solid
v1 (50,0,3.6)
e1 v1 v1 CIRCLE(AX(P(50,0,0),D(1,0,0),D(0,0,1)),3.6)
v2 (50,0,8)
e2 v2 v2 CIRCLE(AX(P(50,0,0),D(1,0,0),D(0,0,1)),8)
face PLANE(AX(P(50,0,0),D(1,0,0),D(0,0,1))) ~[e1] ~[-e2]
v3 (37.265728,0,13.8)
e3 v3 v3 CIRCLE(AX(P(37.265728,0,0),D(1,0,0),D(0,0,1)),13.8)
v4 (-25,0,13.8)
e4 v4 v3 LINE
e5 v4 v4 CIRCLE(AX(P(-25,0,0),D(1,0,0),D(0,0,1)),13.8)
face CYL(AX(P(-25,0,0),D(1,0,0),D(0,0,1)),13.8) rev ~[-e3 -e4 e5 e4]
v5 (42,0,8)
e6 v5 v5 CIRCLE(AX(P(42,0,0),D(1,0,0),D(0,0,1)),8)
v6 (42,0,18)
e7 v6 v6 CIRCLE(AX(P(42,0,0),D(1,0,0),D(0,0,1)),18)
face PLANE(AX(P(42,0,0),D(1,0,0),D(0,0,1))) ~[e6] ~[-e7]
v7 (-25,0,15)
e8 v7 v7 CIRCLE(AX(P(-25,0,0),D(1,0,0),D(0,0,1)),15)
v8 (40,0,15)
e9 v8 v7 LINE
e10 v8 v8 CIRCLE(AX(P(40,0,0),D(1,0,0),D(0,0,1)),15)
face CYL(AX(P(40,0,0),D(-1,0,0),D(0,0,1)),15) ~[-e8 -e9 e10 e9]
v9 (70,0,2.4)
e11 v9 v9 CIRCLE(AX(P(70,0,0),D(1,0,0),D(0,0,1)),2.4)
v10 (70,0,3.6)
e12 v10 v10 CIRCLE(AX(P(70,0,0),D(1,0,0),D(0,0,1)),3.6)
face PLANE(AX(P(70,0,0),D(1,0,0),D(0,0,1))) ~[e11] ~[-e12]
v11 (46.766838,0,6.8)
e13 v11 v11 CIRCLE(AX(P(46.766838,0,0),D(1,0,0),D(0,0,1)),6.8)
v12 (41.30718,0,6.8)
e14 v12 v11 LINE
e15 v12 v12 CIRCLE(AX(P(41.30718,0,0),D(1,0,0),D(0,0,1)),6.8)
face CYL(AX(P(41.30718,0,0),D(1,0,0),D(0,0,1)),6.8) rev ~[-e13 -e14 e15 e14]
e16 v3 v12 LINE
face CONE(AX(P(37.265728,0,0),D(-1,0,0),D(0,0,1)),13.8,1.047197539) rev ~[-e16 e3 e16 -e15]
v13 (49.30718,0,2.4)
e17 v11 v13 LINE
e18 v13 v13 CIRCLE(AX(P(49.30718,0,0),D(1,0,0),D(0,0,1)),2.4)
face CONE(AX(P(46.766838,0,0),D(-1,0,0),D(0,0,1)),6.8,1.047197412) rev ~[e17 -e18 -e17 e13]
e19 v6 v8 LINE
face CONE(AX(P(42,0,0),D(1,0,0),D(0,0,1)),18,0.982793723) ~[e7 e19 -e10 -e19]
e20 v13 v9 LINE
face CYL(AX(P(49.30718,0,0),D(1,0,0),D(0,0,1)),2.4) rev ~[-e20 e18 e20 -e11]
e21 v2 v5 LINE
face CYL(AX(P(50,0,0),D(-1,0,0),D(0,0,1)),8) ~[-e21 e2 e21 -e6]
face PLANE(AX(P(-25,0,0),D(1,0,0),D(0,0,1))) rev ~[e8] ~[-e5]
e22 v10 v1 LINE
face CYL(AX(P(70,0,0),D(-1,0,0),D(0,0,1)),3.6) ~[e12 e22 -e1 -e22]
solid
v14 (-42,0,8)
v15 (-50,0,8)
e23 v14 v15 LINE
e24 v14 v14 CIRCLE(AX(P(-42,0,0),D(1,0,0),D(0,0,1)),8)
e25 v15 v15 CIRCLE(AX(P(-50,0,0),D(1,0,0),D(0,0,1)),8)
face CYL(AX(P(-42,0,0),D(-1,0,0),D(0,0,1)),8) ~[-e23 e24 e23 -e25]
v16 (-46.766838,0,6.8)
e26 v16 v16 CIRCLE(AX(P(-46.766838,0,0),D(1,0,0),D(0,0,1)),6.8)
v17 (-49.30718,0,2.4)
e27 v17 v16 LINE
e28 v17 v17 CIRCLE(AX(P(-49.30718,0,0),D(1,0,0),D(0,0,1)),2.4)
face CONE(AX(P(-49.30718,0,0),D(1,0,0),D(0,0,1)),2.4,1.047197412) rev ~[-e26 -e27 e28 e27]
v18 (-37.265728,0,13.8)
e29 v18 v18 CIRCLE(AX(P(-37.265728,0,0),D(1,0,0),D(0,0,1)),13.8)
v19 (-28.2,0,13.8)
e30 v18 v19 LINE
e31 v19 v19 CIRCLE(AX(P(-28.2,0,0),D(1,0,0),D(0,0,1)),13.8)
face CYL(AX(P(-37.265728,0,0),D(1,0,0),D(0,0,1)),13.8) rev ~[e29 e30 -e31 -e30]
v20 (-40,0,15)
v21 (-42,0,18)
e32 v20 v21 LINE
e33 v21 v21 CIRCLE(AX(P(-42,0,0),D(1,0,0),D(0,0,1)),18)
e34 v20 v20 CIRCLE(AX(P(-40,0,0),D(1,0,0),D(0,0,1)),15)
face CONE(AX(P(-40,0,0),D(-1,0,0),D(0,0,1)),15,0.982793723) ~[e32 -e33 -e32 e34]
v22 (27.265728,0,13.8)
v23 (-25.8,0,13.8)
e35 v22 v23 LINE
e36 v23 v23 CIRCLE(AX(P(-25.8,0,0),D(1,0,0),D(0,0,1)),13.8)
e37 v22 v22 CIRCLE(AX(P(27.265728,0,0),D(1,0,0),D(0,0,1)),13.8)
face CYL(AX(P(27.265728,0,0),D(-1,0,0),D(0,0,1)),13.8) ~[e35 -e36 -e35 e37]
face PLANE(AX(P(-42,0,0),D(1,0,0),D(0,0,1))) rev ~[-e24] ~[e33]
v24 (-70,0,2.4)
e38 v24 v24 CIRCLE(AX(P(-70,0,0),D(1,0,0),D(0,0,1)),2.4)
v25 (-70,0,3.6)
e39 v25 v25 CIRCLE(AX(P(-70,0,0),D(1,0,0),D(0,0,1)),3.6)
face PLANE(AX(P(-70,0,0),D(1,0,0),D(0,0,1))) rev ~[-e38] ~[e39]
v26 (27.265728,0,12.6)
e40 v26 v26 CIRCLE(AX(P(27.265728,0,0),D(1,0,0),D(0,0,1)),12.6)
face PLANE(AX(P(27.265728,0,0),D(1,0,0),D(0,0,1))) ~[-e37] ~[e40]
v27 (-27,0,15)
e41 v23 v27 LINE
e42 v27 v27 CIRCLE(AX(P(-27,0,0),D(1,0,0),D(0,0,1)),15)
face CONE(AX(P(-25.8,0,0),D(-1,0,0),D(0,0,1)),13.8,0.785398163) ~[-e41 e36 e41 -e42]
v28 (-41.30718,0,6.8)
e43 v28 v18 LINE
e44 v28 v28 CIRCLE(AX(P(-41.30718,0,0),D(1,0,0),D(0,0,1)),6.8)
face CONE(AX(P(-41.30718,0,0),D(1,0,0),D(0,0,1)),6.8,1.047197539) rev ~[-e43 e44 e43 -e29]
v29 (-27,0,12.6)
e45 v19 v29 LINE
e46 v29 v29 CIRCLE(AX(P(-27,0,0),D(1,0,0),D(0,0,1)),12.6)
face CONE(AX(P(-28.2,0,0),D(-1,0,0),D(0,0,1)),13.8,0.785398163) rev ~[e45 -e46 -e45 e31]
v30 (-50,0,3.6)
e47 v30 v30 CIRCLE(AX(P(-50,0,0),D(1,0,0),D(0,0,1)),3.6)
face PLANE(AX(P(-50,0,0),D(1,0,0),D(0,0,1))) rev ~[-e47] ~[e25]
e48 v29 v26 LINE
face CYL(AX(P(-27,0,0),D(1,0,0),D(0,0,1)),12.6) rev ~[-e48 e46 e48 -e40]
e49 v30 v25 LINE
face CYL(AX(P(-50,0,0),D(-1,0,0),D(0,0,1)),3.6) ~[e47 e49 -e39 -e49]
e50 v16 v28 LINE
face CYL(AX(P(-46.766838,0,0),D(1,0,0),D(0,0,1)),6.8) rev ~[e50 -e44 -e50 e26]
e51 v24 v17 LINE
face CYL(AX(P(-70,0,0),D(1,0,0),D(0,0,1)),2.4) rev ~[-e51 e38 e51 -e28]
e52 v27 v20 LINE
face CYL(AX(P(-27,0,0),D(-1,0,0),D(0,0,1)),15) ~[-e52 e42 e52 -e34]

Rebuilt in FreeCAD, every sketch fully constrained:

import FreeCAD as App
import Part
import Sketcher

V = App.Vector
Q = App.Units.Quantity


def add_polygon(sketch, points):
    """Adds a closed chain of lines whose ends are joined by coincident constraints."""
    first, n = sketch.GeometryCount, len(points)
    for a, b in zip(points, points[1:] + points[:1]):
        sketch.addGeometry(Part.LineSegment(App.Vector(*a, 0), App.Vector(*b, 0)), False)
    for i in range(n):
        sketch.addConstraint(Sketcher.Constraint("Coincident", first + i, 2, first + (i + 1) % n, 1))

doc = App.newDocument("Part")
params = doc.addObject("Spreadsheet::Sheet", "Params")
for row, (alias, value) in enumerate([
    ("sketch1_width", "20 mm"),
    ("sketch1_width2", "8 mm"),
    ("sketch1_width3", "65 mm"),
    ("sketch1_height", "10 mm"),
    ("sketch1_height2", "1.2 mm"),
    ("revolution_angle", "360 deg"),
    ("sketch2_width", "13 mm"),
    ("sketch2_width2", "8 mm"),
    ("sketch2_width3", "20 mm"),
    ("sketch2_height", "10 mm"),
    ("sketch2_height2", "4.4 mm"),
    ("revolution2_angle", "360 deg"),
], start=1):
    params.set(f"A{row}", alias)
    params.set(f"B{row}", "=" + value)
    params.setAlias(f"B{row}", alias)

body = doc.addObject("PartDesign::Body", "Body")

sketch1 = body.newObject("Sketcher::SketchObject", "Sketch")
sketch1.AttachmentSupport = (doc.getObject("XZ_Plane"), [""])
sketch1.MapMode = "FlatFace"
add_polygon(sketch1, [(70, 2.4), (70, 3.6), (50, 3.6), (50, 8), (42, 8), (42, 18), (40, 15), (-25, 15), (-25, 13.8), (37.265728, 13.8), (41.30718, 6.8), (46.766838, 6.8), (49.30718, 2.4)])
sketch1.addConstraint(Sketcher.Constraint("Vertical", 0))
sketch1.addConstraint(Sketcher.Constraint("Horizontal", 1))
sketch1.addConstraint(Sketcher.Constraint("Vertical", 2))
sketch1.addConstraint(Sketcher.Constraint("Horizontal", 3))
sketch1.addConstraint(Sketcher.Constraint("Vertical", 4))
sketch1.addConstraint(Sketcher.Constraint("Horizontal", 6))
sketch1.addConstraint(Sketcher.Constraint("Vertical", 7))
sketch1.addConstraint(Sketcher.Constraint("Horizontal", 8))
sketch1.addConstraint(Sketcher.Constraint("Horizontal", 10))
sketch1.addConstraint(Sketcher.Constraint("Horizontal", 12))
sketch1.addConstraint(Sketcher.Constraint("Parallel", 9, 11))
sketch1.addConstraint(Sketcher.Constraint("Equal", 0, 7))
sketch1.addConstraint(Sketcher.Constraint("DistanceX", 1, 2, 1, 1, 20.0))
sketch1.addConstraint(Sketcher.Constraint("DistanceX", 3, 2, 3, 1, 8.0))
sketch1.addConstraint(Sketcher.Constraint("DistanceX", 6, 2, 6, 1, 65.0))
sketch1.addConstraint(Sketcher.Constraint("DistanceY", 4, 1, 4, 2, 10.0))
sketch1.addConstraint(Sketcher.Constraint("Angle", 9, Q("-59.999999 deg")))
sketch1.addConstraint(Sketcher.Constraint("DistanceY", 0, 1, 0, 2, 1.2))
sketch1.addConstraint(Sketcher.Constraint("DistanceY", 2, 1, 2, 2, 4.4))
sketch1.addConstraint(Sketcher.Constraint("DistanceX", -1, 1, 0, 2, 70.0))
sketch1.addConstraint(Sketcher.Constraint("DistanceY", -1, 1, 2, 2, 8.0))
sketch1.addConstraint(Sketcher.Constraint("DistanceX", -1, 1, 5, 2, 40.0))
sketch1.addConstraint(Sketcher.Constraint("DistanceY", -1, 1, 5, 2, 15.0))
sketch1.addConstraint(Sketcher.Constraint("DistanceY", 9, 2, 8, 2, 7.0))
sketch1.addConstraint(Sketcher.Constraint("DistanceX", 9, 2, 11, 2, 8.0))
sketch1.addConstraint(Sketcher.Constraint("DistanceX", 8, 1, 8, 2, 62.265728))
sketch1.setExpression("Constraints[25]", "Params.sketch1_width")
sketch1.setExpression("Constraints[26]", "Params.sketch1_width2")
sketch1.setExpression("Constraints[27]", "Params.sketch1_width3")
sketch1.setExpression("Constraints[28]", "Params.sketch1_height")
sketch1.setExpression("Constraints[30]", "Params.sketch1_height2")
revolution = body.newObject("PartDesign::Revolution", "Revolution")
revolution.Profile = sketch1
revolution.ReferenceAxis = (sketch1, ["H_Axis"])
revolution.setExpression("Angle", "Params.revolution_angle")
body2 = doc.addObject("PartDesign::Body", "Body001")

sketch2 = body2.newObject("Sketcher::SketchObject", "Sketch001")
sketch2.AttachmentSupport = (doc.getObject("XZ_Plane001"), [""])
sketch2.MapMode = "FlatFace"
add_polygon(sketch2, [(-27, 15), (-40, 15), (-42, 18), (-42, 8), (-50, 8), (-50, 3.6), (-70, 3.6), (-70, 2.4), (-49.30718, 2.4), (-46.766838, 6.8), (-41.30718, 6.8), (-37.265728, 13.8), (-28.2, 13.8), (-27, 12.6), (27.265728, 12.6), (27.265728, 13.8), (-25.8, 13.8)])
sketch2.addConstraint(Sketcher.Constraint("Horizontal", 0))
sketch2.addConstraint(Sketcher.Constraint("Vertical", 2))
sketch2.addConstraint(Sketcher.Constraint("Horizontal", 3))
sketch2.addConstraint(Sketcher.Constraint("Vertical", 4))
sketch2.addConstraint(Sketcher.Constraint("Horizontal", 5))
sketch2.addConstraint(Sketcher.Constraint("Vertical", 6))
sketch2.addConstraint(Sketcher.Constraint("Horizontal", 7))
sketch2.addConstraint(Sketcher.Constraint("Horizontal", 9))
sketch2.addConstraint(Sketcher.Constraint("Horizontal", 11))
sketch2.addConstraint(Sketcher.Constraint("Horizontal", 13))
sketch2.addConstraint(Sketcher.Constraint("Vertical", 14))
sketch2.addConstraint(Sketcher.Constraint("Horizontal", 15))
sketch2.addConstraint(Sketcher.Constraint("Parallel", 8, 10))
sketch2.addConstraint(Sketcher.Constraint("Parallel", 12, 16))
sketch2.addConstraint(Sketcher.Constraint("Horizontal", 11, 2, 14, 2))
sketch2.addConstraint(Sketcher.Constraint("Vertical", 12, 2, 16, 2))
sketch2.addConstraint(Sketcher.Constraint("Equal", 6, 14))
sketch2.addConstraint(Sketcher.Constraint("Equal", 12, 16))
sketch2.addConstraint(Sketcher.Constraint("DistanceX", 0, 2, 0, 1, 13.0))
sketch2.addConstraint(Sketcher.Constraint("DistanceX", 3, 2, 3, 1, 8.0))
sketch2.addConstraint(Sketcher.Constraint("DistanceX", 5, 2, 5, 1, 20.0))
sketch2.addConstraint(Sketcher.Constraint("DistanceY", 2, 2, 2, 1, 10.0))
sketch2.addConstraint(Sketcher.Constraint("Angle", 8, Q("59.999992 deg")))
sketch2.addConstraint(Sketcher.Constraint("Angle", 12, Q("-45 deg")))
sketch2.addConstraint(Sketcher.Constraint("DistanceY", 4, 2, 4, 1, 4.4))
sketch2.addConstraint(Sketcher.Constraint("DistanceY", 6, 2, 6, 1, 1.2))
sketch2.addConstraint(Sketcher.Constraint("DistanceX", 0, 2, -1, 1, 40.0))
sketch2.addConstraint(Sketcher.Constraint("DistanceY", -1, 1, 0, 2, 15.0))
sketch2.addConstraint(Sketcher.Constraint("DistanceX", 1, 2, -1, 1, 42.0))
sketch2.addConstraint(Sketcher.Constraint("DistanceY", -1, 1, 1, 2, 18.0))
sketch2.addConstraint(Sketcher.Constraint("DistanceX", 7, 2, 9, 2, 8.0))
sketch2.addConstraint(Sketcher.Constraint("DistanceY", 9, 2, 10, 2, 7.0))
sketch2.addConstraint(Sketcher.Constraint("DistanceX", 7, 1, 7, 2, 20.69282))
sketch2.addConstraint(Sketcher.Constraint("DistanceX", 13, 1, 13, 2, 54.265728))
sketch2.setExpression("Constraints[35]", "Params.sketch2_width")
sketch2.setExpression("Constraints[36]", "Params.sketch2_width2")
sketch2.setExpression("Constraints[37]", "Params.sketch2_width3")
sketch2.setExpression("Constraints[38]", "Params.sketch2_height")
sketch2.setExpression("Constraints[41]", "Params.sketch2_height2")
revolution2 = body2.newObject("PartDesign::Revolution", "Revolution001")
revolution2.Profile = sketch2
revolution2.ReferenceAxis = (sketch2, ["H_Axis"])
revolution2.setExpression("Angle", "Params.revolution2_angle")

doc.recompute()
